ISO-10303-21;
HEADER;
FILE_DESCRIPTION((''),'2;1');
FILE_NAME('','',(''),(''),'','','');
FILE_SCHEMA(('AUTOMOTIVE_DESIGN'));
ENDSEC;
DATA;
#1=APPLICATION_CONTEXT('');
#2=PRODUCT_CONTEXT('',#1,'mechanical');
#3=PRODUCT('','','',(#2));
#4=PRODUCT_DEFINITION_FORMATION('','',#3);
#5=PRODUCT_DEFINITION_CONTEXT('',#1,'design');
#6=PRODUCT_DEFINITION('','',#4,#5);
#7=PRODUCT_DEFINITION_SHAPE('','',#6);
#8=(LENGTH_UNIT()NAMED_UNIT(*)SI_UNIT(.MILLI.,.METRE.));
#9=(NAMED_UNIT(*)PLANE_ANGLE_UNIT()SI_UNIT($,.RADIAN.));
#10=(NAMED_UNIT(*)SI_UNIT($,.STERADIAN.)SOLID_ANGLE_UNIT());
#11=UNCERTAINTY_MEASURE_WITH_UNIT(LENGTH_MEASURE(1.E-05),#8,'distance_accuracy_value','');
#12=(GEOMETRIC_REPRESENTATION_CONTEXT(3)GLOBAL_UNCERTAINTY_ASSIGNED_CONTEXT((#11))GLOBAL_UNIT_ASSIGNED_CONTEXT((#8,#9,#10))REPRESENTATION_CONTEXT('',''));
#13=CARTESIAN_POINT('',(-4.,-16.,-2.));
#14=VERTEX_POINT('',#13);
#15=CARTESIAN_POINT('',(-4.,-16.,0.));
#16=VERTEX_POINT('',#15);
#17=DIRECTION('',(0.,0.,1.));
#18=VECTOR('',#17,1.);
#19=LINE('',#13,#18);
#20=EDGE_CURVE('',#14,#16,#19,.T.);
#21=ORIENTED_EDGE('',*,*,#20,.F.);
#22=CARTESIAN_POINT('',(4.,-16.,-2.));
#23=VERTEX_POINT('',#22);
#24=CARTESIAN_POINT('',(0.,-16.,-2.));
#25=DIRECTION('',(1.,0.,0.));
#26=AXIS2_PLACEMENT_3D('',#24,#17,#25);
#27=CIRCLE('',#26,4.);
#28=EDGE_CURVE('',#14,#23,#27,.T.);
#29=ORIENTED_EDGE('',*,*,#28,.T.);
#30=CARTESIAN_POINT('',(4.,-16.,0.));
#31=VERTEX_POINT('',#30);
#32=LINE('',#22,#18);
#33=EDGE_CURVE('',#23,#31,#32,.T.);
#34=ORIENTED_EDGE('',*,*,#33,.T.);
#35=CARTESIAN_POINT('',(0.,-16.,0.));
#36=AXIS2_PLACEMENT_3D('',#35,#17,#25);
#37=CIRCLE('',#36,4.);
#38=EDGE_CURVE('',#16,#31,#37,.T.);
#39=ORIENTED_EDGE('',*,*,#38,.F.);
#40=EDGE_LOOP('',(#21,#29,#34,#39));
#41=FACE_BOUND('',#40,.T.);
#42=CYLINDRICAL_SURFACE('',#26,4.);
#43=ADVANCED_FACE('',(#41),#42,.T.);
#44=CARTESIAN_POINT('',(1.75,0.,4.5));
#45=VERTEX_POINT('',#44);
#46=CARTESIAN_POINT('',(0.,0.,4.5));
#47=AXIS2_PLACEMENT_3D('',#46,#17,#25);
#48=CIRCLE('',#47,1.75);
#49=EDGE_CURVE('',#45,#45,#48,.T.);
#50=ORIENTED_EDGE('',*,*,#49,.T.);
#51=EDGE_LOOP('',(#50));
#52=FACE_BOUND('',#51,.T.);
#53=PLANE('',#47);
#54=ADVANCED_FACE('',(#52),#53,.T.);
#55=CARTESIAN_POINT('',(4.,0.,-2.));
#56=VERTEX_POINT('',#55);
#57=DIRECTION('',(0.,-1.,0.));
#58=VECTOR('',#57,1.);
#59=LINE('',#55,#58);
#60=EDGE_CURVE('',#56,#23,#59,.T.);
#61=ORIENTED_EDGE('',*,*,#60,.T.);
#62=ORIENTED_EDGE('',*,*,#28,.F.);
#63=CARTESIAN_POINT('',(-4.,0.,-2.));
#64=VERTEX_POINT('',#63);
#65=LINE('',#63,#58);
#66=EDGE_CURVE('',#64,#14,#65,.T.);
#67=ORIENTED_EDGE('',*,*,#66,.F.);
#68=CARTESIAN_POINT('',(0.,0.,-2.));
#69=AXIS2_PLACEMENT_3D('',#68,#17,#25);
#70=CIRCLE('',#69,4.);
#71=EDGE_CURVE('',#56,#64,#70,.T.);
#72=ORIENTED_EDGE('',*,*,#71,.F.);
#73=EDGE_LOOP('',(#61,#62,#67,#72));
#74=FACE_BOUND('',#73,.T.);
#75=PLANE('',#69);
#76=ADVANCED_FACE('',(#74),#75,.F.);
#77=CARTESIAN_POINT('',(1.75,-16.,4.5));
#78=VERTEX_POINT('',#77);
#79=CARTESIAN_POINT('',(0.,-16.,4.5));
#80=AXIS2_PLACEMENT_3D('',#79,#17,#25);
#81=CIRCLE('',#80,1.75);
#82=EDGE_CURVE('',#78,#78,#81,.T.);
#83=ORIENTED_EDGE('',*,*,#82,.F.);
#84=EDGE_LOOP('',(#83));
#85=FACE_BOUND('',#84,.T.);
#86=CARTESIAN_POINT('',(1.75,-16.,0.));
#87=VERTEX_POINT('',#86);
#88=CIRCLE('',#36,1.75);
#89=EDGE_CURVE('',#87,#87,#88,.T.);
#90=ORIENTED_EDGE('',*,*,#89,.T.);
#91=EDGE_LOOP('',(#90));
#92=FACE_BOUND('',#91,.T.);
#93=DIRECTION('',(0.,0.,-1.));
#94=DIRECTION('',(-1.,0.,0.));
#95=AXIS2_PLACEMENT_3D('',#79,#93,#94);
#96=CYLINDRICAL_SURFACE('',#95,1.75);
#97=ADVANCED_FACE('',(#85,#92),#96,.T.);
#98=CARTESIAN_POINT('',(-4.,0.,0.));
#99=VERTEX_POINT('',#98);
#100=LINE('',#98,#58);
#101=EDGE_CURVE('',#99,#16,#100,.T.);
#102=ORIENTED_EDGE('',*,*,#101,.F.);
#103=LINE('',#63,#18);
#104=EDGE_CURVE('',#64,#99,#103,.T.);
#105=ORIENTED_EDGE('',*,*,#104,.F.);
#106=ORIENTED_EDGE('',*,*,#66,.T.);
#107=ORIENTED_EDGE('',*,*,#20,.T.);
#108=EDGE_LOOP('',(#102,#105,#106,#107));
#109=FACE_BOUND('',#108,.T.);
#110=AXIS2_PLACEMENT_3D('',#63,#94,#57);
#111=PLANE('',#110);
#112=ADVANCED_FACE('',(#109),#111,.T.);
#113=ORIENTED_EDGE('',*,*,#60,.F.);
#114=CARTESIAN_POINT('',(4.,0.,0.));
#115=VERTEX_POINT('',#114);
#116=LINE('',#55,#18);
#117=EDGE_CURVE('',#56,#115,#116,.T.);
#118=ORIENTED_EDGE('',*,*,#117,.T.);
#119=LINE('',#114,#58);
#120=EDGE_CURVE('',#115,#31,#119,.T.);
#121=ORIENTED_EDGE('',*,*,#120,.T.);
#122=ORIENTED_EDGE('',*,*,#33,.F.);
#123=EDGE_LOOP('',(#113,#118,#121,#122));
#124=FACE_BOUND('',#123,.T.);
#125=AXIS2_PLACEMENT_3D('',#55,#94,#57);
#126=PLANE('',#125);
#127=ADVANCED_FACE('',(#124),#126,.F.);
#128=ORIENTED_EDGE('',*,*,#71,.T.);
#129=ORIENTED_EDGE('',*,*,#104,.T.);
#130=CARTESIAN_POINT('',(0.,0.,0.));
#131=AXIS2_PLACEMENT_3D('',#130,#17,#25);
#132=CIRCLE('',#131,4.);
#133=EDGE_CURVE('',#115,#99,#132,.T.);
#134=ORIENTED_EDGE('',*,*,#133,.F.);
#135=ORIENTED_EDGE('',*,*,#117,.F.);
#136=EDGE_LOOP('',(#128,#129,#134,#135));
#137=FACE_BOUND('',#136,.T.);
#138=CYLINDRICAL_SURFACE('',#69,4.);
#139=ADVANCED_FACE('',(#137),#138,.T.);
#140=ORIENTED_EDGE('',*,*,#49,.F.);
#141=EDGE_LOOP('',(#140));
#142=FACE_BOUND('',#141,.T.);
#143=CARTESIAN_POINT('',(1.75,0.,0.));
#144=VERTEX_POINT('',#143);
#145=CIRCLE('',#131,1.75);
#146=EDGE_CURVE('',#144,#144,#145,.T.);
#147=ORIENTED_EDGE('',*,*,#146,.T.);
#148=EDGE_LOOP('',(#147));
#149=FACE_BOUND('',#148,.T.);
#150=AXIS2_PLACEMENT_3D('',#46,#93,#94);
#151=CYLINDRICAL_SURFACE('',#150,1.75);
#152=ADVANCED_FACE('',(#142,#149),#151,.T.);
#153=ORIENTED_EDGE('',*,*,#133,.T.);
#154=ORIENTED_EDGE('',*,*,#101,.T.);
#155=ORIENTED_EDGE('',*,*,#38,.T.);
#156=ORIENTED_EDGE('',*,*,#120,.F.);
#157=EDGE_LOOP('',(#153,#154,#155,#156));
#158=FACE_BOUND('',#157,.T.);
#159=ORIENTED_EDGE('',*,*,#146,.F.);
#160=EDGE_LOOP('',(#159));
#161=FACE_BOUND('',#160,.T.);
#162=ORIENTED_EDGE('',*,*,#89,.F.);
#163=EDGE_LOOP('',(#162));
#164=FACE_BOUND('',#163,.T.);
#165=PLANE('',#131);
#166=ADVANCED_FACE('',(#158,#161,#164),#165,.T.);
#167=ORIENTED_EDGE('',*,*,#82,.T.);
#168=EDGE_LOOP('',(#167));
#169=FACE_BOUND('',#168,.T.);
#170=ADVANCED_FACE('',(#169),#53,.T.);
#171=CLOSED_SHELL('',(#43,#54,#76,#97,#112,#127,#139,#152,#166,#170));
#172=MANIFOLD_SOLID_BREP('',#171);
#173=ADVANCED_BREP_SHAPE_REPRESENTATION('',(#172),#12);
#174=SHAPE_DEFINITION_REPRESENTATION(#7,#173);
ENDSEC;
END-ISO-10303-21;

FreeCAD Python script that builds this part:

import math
import FreeCAD as App
import Part
import Sketcher
Q = App.Units.Quantity

doc = App.newDocument("Part")
params = doc.addObject("Spreadsheet::Sheet", "Params")
for row, (alias, value) in enumerate([
    ("sketch1_radius", "4 mm"),
    ("sketch1_height", "16 mm"),
    ("pad1_length", "2 mm"),
    ("sketch2_diameter", "3.5 mm"),
    ("pad2_length", "4.5 mm"),
], start=1):
    params.set(f"A{row}", alias)
    params.set(f"B{row}", "=" + value)
    params.setAlias(f"B{row}", alias)

body = doc.addObject("PartDesign::Body", "Body")

# Sketch on XY plane
sketch1 = body.newObject("Sketcher::SketchObject", "Sketch")
sketch1.AttachmentSupport = (doc.getObject("XY_Plane"), [""])
sketch1.MapMode = "FlatFace"
sketch1.addGeometry([
    Part.ArcOfCircle(Part.Circle(App.Vector(0, 0, 0), App.Vector(0, 0, 1), 4), math.radians(0), math.radians(180)),
    Part.LineSegment(App.Vector(-4, 0, 0), App.Vector(-4, -16, 0)),
    Part.ArcOfCircle(Part.Circle(App.Vector(0, -16, 0), App.Vector(0, 0, 1), 4), math.radians(180), math.radians(360)),
    Part.LineSegment(App.Vector(4, -16, 0), App.Vector(4, 0, 0)),
], False)
sketch1.addConstraint([
    Sketcher.Constraint("Tangent", 0, 2, 1, 1),
    Sketcher.Constraint("Tangent", 1, 2, 2, 1),
    Sketcher.Constraint("Tangent", 2, 2, 3, 1),
    Sketcher.Constraint("Tangent", 3, 2, 0, 1),
    Sketcher.Constraint("Vertical", 1),
    Sketcher.Constraint("Vertical", 3),
    Sketcher.Constraint("Coincident", 0, 3, -1, 1),
    Sketcher.Constraint("Radius", 0, Q("4 mm")),
    Sketcher.Constraint("DistanceY", 1, 2, 1, 1, Q("16 mm")),
])
sketch1.setExpression("Constraints[7]", "Params.sketch1_radius")
sketch1.setExpression("Constraints[8]", "Params.sketch1_height")
pad1 = body.newObject("PartDesign::Pad", "Pad")
pad1.Profile = sketch1
pad1.setExpression("Length", "Params.pad1_length")
pad1.Reversed = True

# Sketch on XY plane
sketch2 = body.newObject("Sketcher::SketchObject", "Sketch001")
sketch2.AttachmentSupport = (doc.getObject("XY_Plane"), [""])
sketch2.MapMode = "FlatFace"
sketch2.addGeometry([
    Part.Circle(App.Vector(0, 0, 0), App.Vector(0, 0, 1), 1.75),
    Part.Circle(App.Vector(0, -16, 0), App.Vector(0, 0, 1), 1.75),
], False)
sketch2.addConstraint([
    Sketcher.Constraint("Coincident", 0, 3, -1, 1),
    Sketcher.Constraint("Equal", 0, 1),
    Sketcher.Constraint("PointOnObject", 1, 3, -2),
    Sketcher.Constraint("Diameter", 0, Q("3.5 mm")),
    Sketcher.Constraint("DistanceY", 1, 3, -1, 1, Q("16 mm")),
])
sketch2.setExpression("Constraints[3]", "Params.sketch2_diameter")
pad2 = body.newObject("PartDesign::Pad", "Pad001")
pad2.Profile = sketch2
pad2.setExpression("Length", "Params.pad2_length")

doc.recompute()
